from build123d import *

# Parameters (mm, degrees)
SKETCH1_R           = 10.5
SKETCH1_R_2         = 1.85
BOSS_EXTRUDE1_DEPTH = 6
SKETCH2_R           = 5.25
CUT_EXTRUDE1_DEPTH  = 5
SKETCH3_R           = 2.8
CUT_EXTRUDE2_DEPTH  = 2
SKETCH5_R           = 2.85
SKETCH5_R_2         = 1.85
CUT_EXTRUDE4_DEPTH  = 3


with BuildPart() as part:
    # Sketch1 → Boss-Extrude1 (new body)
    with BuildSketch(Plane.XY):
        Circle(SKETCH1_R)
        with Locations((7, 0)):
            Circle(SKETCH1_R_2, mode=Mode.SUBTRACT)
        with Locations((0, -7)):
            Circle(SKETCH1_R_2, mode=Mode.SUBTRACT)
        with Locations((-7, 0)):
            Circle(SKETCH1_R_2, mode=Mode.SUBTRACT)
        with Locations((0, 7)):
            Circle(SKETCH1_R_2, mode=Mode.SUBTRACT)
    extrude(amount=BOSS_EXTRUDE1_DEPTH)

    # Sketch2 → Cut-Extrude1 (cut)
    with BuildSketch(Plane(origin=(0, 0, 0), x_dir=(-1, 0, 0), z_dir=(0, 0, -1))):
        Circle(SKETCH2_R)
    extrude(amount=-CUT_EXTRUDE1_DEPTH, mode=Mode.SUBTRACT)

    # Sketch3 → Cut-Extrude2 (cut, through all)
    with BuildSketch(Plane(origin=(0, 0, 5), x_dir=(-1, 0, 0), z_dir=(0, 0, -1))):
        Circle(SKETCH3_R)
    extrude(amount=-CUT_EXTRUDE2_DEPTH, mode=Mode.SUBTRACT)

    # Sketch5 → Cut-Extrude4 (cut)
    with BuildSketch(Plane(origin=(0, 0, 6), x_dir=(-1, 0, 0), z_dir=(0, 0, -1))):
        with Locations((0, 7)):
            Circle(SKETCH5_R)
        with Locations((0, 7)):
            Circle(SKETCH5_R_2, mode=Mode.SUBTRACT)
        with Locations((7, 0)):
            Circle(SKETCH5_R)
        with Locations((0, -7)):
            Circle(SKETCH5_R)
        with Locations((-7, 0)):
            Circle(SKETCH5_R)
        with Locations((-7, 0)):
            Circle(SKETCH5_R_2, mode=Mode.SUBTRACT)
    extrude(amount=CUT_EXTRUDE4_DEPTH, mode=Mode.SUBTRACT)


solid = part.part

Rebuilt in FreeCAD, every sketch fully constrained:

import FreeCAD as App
import Part
import Sketcher

V = App.Vector
Q = App.Units.Quantity

doc = App.newDocument("Part")
body = doc.addObject("PartDesign::Body", "Body")

# Sketch on XY plane
sketch1 = body.newObject("Sketcher::SketchObject", "Sketch")
sketch1.AttachmentSupport = (doc.getObject("XY_Plane"), [""])
sketch1.MapMode = "FlatFace"
sketch1.addGeometry(Part.Circle(V(0, 0, 0), V(0, 0, 1), 10.5), False)
sketch1.addGeometry(Part.Circle(V(0, -7, 0), V(0, 0, 1), 1.9), False)
sketch1.addGeometry(Part.Circle(V(-7, 0, 0), V(0, 0, 1), 1.9), False)
sketch1.addGeometry(Part.Circle(V(0, 7, 0), V(0, 0, 1), 1.9), False)
sketch1.addGeometry(Part.Circle(V(7, 0, 0), V(0, 0, 1), 1.9), False)
sketch1.addConstraint(Sketcher.Constraint("Coincident", 0, 3, -1, 1))
sketch1.addConstraint(Sketcher.Constraint("Equal", 1, 2))
sketch1.addConstraint(Sketcher.Constraint("Equal", 2, 3))
sketch1.addConstraint(Sketcher.Constraint("Equal", 3, 4))
sketch1.addConstraint(Sketcher.Constraint("Symmetric", 1, 3, 3, 3, -1, 1))
sketch1.addConstraint(Sketcher.Constraint("Symmetric", 2, 3, 4, 3, -1, 1))
sketch1.addConstraint(Sketcher.Constraint("PointOnObject", 1, 3, -2))
sketch1.addConstraint(Sketcher.Constraint("PointOnObject", 2, 3, -1))
sketch1.addConstraint(Sketcher.Constraint("Diameter", 0, Q("21 mm")))
sketch1.addConstraint(Sketcher.Constraint("Diameter", 1, Q("3.7 mm")))
sketch1.addConstraint(Sketcher.Constraint("DistanceY", 1, 3, -1, 1, Q("7 mm")))
sketch1.addConstraint(Sketcher.Constraint("DistanceX", 2, 3, -1, 1, Q("7 mm")))
pad1 = body.newObject("PartDesign::Pad", "Pad")
pad1.Profile = sketch1
pad1.Length = 6

# Sketch on XY plane
sketch2 = body.newObject("Sketcher::SketchObject", "Sketch001")
sketch2.AttachmentSupport = (doc.getObject("XY_Plane"), [""])
sketch2.MapMode = "FlatFace"
sketch2.addGeometry(Part.Circle(V(0, 0, 0), V(0, 0, 1), 5), False)
sketch2.addConstraint(Sketcher.Constraint("Coincident", 0, 3, -1, 1))
sketch2.addConstraint(Sketcher.Constraint("Diameter", 0, Q("10.5 mm")))
pocket1 = body.newObject("PartDesign::Pocket", "Pocket")
pocket1.Profile = sketch2
pocket1.Length = 5
pocket1.Reversed = True

# Sketch on XY plane
sketch3 = body.newObject("Sketcher::SketchObject", "Sketch002")
sketch3.AttachmentSupport = (doc.getObject("XY_Plane"), [""])
sketch3.MapMode = "FlatFace"
sketch3.AttachmentOffset = App.Placement(V(0, 0, 5), App.Rotation())
sketch3.addGeometry(Part.Circle(V(0, 0, 0), V(0, 0, 1), 2.8), False)
sketch3.addConstraint(Sketcher.Constraint("Coincident", 0, 3, -1, 1))
sketch3.addConstraint(Sketcher.Constraint("Diameter", 0, Q("5.6 mm")))
pocket2 = body.newObject("PartDesign::Pocket", "Pocket001")
pocket2.Profile = sketch3
pocket2.Type = "ThroughAll"
pocket2.Reversed = True

# Sketch on XY plane
sketch4 = body.newObject("Sketcher::SketchObject", "Sketch003")
sketch4.AttachmentSupport = (doc.getObject("XY_Plane"), [""])
sketch4.MapMode = "FlatFace"
sketch4.AttachmentOffset = App.Placement(V(0, 0, 6), App.Rotation())
sketch4.addGeometry(Part.Circle(V(0, 7, 0), V(0, 0, 1), 2.9), False)
sketch4.addGeometry(Part.Circle(V(0, 7, 0), V(0, 0, 1), 1.9), False)
sketch4.addGeometry(Part.Circle(V(-7, 0, 0), V(0, 0, 1), 2.9), False)
sketch4.addGeometry(Part.Circle(V(0, -7, 0), V(0, 0, 1), 2.9), False)
sketch4.addGeometry(Part.Circle(V(7, 0, 0), V(0, 0, 1), 2.9), False)
sketch4.addGeometry(Part.Circle(V(7, 0, 0), V(0, 0, 1), 1.9), False)
sketch4.addConstraint(Sketcher.Constraint("Coincident", 1, 3, 0, 3))
sketch4.addConstraint(Sketcher.Constraint("Coincident", 5, 3, 4, 3))
sketch4.addConstraint(Sketcher.Constraint("Equal", 0, 2))
sketch4.addConstraint(Sketcher.Constraint("Equal", 2, 3))
sketch4.addConstraint(Sketcher.Constraint("Equal", 3, 4))
sketch4.addConstraint(Sketcher.Constraint("Equal", 1, 5))
sketch4.addConstraint(Sketcher.Constraint("Symmetric", 0, 3, 3, 3, -1, 1))
sketch4.addConstraint(Sketcher.Constraint("Symmetric", 2, 3, 4, 3, -1, 1))
sketch4.addConstraint(Sketcher.Constraint("PointOnObject", 0, 3, -2))
sketch4.addConstraint(Sketcher.Constraint("PointOnObject", 2, 3, -1))
sketch4.addConstraint(Sketcher.Constraint("Diameter", 0, Q("5.7 mm")))
sketch4.addConstraint(Sketcher.Constraint("Diameter", 1, Q("3.7 mm")))
sketch4.addConstraint(Sketcher.Constraint("DistanceY", -1, 1, 0, 3, Q("7 mm")))
sketch4.addConstraint(Sketcher.Constraint("DistanceX", 2, 3, -1, 1, Q("7 mm")))
pocket3 = body.newObject("PartDesign::Pocket", "Pocket002")
pocket3.Profile = sketch4
pocket3.Length = 3

doc.recompute()
